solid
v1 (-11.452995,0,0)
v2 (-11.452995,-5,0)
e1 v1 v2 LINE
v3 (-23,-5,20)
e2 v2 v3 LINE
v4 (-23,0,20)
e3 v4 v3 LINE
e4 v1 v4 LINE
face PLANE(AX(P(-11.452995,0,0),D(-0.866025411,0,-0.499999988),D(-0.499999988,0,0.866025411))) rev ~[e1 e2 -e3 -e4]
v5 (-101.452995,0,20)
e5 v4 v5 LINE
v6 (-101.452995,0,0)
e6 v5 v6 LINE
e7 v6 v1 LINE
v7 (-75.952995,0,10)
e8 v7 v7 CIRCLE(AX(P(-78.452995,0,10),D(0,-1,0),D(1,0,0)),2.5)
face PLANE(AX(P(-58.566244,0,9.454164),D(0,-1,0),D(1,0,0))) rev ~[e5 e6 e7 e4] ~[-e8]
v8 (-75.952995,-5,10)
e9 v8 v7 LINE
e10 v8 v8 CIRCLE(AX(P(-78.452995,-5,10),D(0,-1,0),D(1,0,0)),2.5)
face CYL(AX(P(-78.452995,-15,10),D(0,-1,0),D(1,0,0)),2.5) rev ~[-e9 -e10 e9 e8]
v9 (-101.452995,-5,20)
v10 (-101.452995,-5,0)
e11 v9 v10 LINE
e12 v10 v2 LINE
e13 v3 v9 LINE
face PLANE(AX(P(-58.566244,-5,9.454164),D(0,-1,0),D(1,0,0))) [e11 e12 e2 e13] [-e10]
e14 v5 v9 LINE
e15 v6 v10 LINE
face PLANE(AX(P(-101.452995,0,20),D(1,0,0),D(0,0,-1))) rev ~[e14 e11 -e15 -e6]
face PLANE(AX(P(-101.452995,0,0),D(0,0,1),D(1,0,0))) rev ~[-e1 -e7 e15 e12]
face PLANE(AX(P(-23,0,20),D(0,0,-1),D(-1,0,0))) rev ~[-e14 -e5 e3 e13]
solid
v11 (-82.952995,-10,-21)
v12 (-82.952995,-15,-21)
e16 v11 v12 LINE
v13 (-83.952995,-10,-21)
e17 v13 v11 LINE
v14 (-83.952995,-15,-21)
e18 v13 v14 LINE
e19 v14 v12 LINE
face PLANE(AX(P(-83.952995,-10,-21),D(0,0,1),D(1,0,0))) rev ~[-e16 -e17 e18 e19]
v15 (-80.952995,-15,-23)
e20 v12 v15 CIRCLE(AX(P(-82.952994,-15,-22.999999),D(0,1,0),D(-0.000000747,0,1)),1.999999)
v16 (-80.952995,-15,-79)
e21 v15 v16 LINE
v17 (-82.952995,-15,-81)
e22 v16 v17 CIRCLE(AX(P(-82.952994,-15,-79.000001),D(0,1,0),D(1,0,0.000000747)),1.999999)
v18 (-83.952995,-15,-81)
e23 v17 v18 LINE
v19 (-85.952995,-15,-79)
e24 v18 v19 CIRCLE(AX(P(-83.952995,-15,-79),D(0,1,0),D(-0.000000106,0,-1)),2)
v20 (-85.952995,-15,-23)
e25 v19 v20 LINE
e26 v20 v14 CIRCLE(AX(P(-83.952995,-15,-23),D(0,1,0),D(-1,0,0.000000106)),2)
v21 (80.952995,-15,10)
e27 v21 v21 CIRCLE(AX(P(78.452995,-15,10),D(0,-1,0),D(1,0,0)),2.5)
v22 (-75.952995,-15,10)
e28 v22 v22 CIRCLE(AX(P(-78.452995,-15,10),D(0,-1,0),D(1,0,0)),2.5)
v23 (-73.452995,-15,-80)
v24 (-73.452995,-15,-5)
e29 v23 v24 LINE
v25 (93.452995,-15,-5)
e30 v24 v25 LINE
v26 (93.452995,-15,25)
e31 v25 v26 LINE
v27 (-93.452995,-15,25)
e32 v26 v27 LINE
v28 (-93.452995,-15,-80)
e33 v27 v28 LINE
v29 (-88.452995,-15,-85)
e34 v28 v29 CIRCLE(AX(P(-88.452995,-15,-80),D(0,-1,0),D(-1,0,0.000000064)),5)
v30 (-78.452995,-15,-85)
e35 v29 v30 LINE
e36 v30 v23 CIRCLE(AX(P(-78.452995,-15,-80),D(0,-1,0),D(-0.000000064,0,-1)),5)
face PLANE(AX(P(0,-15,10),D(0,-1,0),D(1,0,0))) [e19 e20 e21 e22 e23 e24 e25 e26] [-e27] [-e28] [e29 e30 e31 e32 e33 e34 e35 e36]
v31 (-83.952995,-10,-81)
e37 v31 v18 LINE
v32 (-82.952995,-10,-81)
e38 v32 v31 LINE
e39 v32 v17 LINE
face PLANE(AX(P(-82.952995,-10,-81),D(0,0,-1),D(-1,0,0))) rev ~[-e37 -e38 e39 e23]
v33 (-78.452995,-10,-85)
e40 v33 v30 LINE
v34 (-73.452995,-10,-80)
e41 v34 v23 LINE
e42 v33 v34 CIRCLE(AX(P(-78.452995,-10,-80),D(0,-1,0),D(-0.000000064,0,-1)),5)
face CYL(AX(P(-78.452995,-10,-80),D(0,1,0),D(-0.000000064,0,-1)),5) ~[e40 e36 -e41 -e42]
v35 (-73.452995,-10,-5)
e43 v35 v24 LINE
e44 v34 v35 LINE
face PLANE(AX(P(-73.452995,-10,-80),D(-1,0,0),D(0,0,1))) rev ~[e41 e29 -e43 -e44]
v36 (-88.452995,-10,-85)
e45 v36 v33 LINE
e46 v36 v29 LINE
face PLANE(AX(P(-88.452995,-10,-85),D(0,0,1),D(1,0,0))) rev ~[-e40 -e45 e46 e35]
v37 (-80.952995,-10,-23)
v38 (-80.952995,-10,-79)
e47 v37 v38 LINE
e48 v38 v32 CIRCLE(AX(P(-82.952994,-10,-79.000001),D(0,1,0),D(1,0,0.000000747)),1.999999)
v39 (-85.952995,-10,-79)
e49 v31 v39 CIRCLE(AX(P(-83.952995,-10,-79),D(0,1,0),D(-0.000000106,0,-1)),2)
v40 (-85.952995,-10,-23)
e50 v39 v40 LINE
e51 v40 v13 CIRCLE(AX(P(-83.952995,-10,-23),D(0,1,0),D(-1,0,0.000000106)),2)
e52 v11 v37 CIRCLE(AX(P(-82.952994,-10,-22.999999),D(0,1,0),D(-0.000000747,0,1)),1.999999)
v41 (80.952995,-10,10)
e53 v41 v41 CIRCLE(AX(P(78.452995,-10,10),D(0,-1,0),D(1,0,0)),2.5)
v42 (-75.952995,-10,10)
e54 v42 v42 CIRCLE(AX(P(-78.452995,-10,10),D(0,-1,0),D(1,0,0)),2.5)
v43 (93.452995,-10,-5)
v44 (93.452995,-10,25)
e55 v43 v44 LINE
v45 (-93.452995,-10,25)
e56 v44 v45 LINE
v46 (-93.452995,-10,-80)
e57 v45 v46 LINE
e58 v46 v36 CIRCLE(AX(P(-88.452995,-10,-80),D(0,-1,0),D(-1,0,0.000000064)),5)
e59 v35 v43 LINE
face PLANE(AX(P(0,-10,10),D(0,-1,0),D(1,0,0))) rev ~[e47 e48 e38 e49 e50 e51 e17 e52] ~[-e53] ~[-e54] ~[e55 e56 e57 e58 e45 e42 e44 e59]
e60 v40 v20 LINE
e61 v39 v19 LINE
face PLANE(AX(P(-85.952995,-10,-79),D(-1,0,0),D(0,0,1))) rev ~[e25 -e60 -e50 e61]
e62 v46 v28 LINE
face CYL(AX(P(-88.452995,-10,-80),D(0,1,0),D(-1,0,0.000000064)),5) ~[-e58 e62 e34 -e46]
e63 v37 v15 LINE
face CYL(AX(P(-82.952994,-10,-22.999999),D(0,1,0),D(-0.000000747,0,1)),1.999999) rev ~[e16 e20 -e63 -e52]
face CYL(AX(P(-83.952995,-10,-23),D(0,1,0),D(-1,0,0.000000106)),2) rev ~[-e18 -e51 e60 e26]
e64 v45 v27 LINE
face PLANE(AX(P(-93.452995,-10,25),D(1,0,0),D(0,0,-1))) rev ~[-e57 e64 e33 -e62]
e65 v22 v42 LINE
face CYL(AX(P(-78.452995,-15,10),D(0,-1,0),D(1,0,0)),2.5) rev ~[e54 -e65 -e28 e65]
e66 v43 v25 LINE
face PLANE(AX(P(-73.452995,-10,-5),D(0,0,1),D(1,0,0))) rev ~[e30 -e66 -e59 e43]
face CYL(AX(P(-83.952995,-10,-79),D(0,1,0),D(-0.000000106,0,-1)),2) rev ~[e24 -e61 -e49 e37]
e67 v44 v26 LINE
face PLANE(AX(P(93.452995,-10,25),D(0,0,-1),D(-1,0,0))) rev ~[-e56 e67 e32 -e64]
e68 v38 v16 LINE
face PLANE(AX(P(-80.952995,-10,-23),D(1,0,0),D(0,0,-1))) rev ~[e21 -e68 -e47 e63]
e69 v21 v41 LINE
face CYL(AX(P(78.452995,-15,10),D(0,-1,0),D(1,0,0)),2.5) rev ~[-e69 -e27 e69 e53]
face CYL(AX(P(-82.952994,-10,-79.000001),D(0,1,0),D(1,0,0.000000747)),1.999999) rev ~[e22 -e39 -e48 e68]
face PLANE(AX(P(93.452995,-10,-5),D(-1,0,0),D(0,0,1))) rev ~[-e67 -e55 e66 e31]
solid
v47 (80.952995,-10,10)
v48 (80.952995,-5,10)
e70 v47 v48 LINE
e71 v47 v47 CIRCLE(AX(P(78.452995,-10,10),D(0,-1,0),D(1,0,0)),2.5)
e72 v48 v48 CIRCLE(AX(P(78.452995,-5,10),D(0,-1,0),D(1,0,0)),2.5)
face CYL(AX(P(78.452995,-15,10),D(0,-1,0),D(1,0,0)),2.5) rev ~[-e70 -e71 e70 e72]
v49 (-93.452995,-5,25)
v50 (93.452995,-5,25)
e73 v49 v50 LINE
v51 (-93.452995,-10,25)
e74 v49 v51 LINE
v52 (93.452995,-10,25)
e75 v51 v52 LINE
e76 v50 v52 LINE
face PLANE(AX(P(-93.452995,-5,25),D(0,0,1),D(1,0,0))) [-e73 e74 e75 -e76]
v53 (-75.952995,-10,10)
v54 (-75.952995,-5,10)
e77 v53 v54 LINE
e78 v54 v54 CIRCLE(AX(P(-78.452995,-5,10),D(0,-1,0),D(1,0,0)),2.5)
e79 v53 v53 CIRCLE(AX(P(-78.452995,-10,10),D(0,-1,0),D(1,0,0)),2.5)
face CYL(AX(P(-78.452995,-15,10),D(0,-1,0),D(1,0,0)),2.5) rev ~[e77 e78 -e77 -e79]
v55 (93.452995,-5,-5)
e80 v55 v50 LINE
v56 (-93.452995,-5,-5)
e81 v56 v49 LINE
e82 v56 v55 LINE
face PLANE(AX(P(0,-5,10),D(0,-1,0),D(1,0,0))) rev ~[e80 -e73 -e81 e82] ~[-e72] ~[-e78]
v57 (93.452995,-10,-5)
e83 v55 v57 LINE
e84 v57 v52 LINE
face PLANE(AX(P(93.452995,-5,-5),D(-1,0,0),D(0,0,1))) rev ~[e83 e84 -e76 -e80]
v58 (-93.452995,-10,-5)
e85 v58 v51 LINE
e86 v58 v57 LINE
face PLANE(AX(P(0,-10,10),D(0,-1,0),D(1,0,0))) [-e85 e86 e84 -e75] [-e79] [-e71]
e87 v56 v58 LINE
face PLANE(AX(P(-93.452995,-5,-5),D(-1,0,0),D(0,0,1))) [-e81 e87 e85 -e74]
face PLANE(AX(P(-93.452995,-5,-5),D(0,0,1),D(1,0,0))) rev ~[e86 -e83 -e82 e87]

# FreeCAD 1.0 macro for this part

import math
import FreeCAD as App
import Part
import Sketcher
Q = App.Units.Quantity

doc = App.newDocument("Part")
body = doc.addObject("PartDesign::Body", "Body")

sketch1 = body.newObject("Sketcher::SketchObject", "Sketch")
sketch1.AttachmentSupport = (doc.getObject("XZ_Plane"), [""])
sketch1.MapMode = "FlatFace"
sketch1.addGeometry([
    Part.LineSegment(App.Vector(-101, 20, 0), App.Vector(-101, 0, 0)),
    Part.LineSegment(App.Vector(-101, 0, 0), App.Vector(-11, 0, 0)),
    Part.LineSegment(App.Vector(-11, 0, 0), App.Vector(-23, 20, 0)),
    Part.LineSegment(App.Vector(-23, 20, 0), App.Vector(-101, 20, 0)),
], False)
sketch1.addConstraint([
    Sketcher.Constraint("Coincident", 0, 2, 1, 1),
    Sketcher.Constraint("Coincident", 1, 2, 2, 1),
    Sketcher.Constraint("Coincident", 2, 2, 3, 1),
    Sketcher.Constraint("Coincident", 3, 2, 0, 1),
    Sketcher.Constraint("Vertical", 0),
    Sketcher.Constraint("Horizontal", 1),
    Sketcher.Constraint("Horizontal", 3),
    Sketcher.Constraint("PointOnObject", 0, 2, -1),
    Sketcher.Constraint("DistanceX", 1, 1, 1, 2, Q("90 mm")),
    Sketcher.Constraint("DistanceY", 0, 2, 0, 1, Q("20 mm")),
    Sketcher.Constraint("Angle", 2, Q("119.999999 deg")),
    Sketcher.Constraint("DistanceX", 2, 2, -1, 1, Q("23 mm")),
])
pad1 = body.newObject("PartDesign::Pad", "Pad")
pad1.Profile = sketch1
pad1.Length = 5
body2 = doc.addObject("PartDesign::Body", "Body001")

sketch2 = body2.newObject("Sketcher::SketchObject", "Sketch001")
sketch2.AttachmentSupport = (doc.getObject("XZ_Plane001"), [""])
sketch2.MapMode = "FlatFace"
sketch2.AttachmentOffset = App.Placement(App.Vector(0, 0, 5), App.Rotation())
sketch2.addGeometry([
    Part.LineSegment(App.Vector(-93, 25, 0), App.Vector(-93, -5, 0)),
    Part.LineSegment(App.Vector(-93, -5, 0), App.Vector(93, -5, 0)),
    Part.LineSegment(App.Vector(93, -5, 0), App.Vector(93, 25, 0)),
    Part.LineSegment(App.Vector(93, 25, 0), App.Vector(-93, 25, 0)),
], False)
sketch2.addConstraint([
    Sketcher.Constraint("Coincident", 0, 2, 1, 1),
    Sketcher.Constraint("Coincident", 1, 2, 2, 1),
    Sketcher.Constraint("Coincident", 2, 2, 3, 1),
    Sketcher.Constraint("Coincident", 3, 2, 0, 1),
    Sketcher.Constraint("Vertical", 0),
    Sketcher.Constraint("Horizontal", 1),
    Sketcher.Constraint("Vertical", 2),
    Sketcher.Constraint("Horizontal", 3),
    Sketcher.Constraint("DistanceY", 0, 2, 0, 1, Q("30 mm")),
    Sketcher.Constraint("DistanceY", 0, 2, -1, 1, Q("5 mm")),
    Sketcher.Constraint("DistanceX", 1, 1, 1, 2, Q("186.90599 mm")),
    Sketcher.Constraint("DistanceX", 0, 2, -1, 1, Q("93.452995 mm")),
])
pad2 = body2.newObject("PartDesign::Pad", "Pad001")
pad2.Profile = sketch2
pad2.Length = 5
body3 = doc.addObject("PartDesign::Body", "Body002")

sketch3 = body3.newObject("Sketcher::SketchObject", "Sketch002")
sketch3.AttachmentSupport = (doc.getObject("XZ_Plane002"), [""])
sketch3.MapMode = "FlatFace"
sketch3.AttachmentOffset = App.Placement(App.Vector(0, 0, 10), App.Rotation())
sketch3.addGeometry([
    Part.LineSegment(App.Vector(93.5, 25, 0), App.Vector(-93.5, 25, 0)),
    Part.LineSegment(App.Vector(-93.5, 25, 0), App.Vector(-93.5, -80, 0)),
    Part.ArcOfCircle(Part.Circle(App.Vector(-88.5, -80, 0), App.Vector(0, 0, 1), 5), math.radians(180), math.radians(270)),
    Part.LineSegment(App.Vector(-88.5, -85, 0), App.Vector(-78.5, -85, 0)),
    Part.ArcOfCircle(Part.Circle(App.Vector(-78.5, -80, 0), App.Vector(0, 0, 1), 5), math.radians(-90), math.radians(0)),
    Part.LineSegment(App.Vector(-73.5, -80, 0), App.Vector(-73.5, -5, 0)),
    Part.LineSegment(App.Vector(-73.5, -5, 0), App.Vector(93.5, -5, 0)),
    Part.LineSegment(App.Vector(93.5, -5, 0), App.Vector(93.5, 25, 0)),
    Part.ArcOfCircle(Part.Circle(App.Vector(-84, -23, 0), App.Vector(0, 0, 1), 2), math.radians(90), math.radians(180)),
    Part.LineSegment(App.Vector(-84, -21, 0), App.Vector(-83, -21, 0)),
    Part.ArcOfCircle(Part.Circle(App.Vector(-83, -23, 0), App.Vector(0, 0, 1), 2), math.radians(0), math.radians(90)),
    Part.LineSegment(App.Vector(-81, -23, 0), App.Vector(-81, -79, 0)),
    Part.ArcOfCircle(Part.Circle(App.Vector(-83, -79, 0), App.Vector(0, 0, 1), 2), math.radians(-90), math.radians(0)),
    Part.LineSegment(App.Vector(-83, -81, 0), App.Vector(-84, -81, 0)),
    Part.ArcOfCircle(Part.Circle(App.Vector(-84, -79, 0), App.Vector(0, 0, 1), 2), math.radians(-180), math.radians(-90)),
    Part.LineSegment(App.Vector(-86, -79, 0), App.Vector(-86, -23, 0)),
], False)
sketch3.addConstraint([
    Sketcher.Constraint("Coincident", 0, 2, 1, 1),
    Sketcher.Constraint("Tangent", 1, 2, 2, 1),
    Sketcher.Constraint("Tangent", 2, 2, 3, 1),
    Sketcher.Constraint("Tangent", 3, 2, 4, 1),
    Sketcher.Constraint("Tangent", 4, 2, 5, 1),
    Sketcher.Constraint("Coincident", 5, 2, 6, 1),
    Sketcher.Constraint("Coincident", 6, 2, 7, 1),
    Sketcher.Constraint("Coincident", 7, 2, 0, 1),
    Sketcher.Constraint("Tangent", 8, 1, 9, 1),
    Sketcher.Constraint("Tangent", 9, 2, 10, 2),
    Sketcher.Constraint("Tangent", 10, 1, 11, 1),
    Sketcher.Constraint("Tangent", 11, 2, 12, 2),
    Sketcher.Constraint("Tangent", 12, 1, 13, 1),
    Sketcher.Constraint("Tangent", 13, 2, 14, 2),
    Sketcher.Constraint("Tangent", 14, 1, 15, 1),
    Sketcher.Constraint("Tangent", 15, 2, 8, 2),
    Sketcher.Constraint("Horizontal", 0),
    Sketcher.Constraint("Vertical", 1),
    Sketcher.Constraint("Horizontal", 3),
    Sketcher.Constraint("Vertical", 5),
    Sketcher.Constraint("Horizontal", 6),
    Sketcher.Constraint("Vertical", 7),
    Sketcher.Constraint("Horizontal", 9),
    Sketcher.Constraint("Vertical", 11),
    Sketcher.Constraint("Horizontal", 13),
    Sketcher.Constraint("Vertical", 15),
    Sketcher.Constraint("Equal", 2, 4),
    Sketcher.Constraint("Equal", 8, 10),
    Sketcher.Constraint("Equal", 10, 12),
    Sketcher.Constraint("Equal", 12, 14),
    Sketcher.Constraint("Radius", 2, Q("5 mm")),
    Sketcher.Constraint("Radius", 8, Q("2 mm")),
    Sketcher.Constraint("DistanceX", 3, 1, 3, 2, Q("10 mm")),
    Sketcher.Constraint("DistanceX", 9, 1, 9, 2, Q("1 mm")),
    Sketcher.Constraint("DistanceY", 1, 2, 1, 1, Q("105 mm")),
    Sketcher.Constraint("DistanceY", 5, 1, 5, 2, Q("75 mm")),
    Sketcher.Constraint("DistanceY", 11, 2, 11, 1, Q("56 mm")),
    Sketcher.Constraint("DistanceY", 2, 3, -1, 1, Q("80 mm")),
    Sketcher.Constraint("DistanceY", 8, 3, -1, 1, Q("23 mm")),
    Sketcher.Constraint("DistanceX", 2, 3, 8, 3, Q("4.500001 mm")),
    Sketcher.Constraint("DistanceX", 0, 2, 0, 1, Q("186.90599 mm")),
    Sketcher.Constraint("DistanceX", 2, 3, -1, 1, Q("88.452995 mm")),
])
pad3 = body3.newObject("PartDesign::Pad", "Pad002")
pad3.Profile = sketch3
pad3.Length = 5
body4 = doc.addObject("PartDesign::Body", "Body003")
body4.AllowCompound = True

sketch4 = body4.newObject("Sketcher::SketchObject", "Sketch003")
sketch4.AttachmentSupport = (doc.getObject("XZ_Plane003"), [""])
sketch4.MapMode = "FlatFace"
sketch4.AttachmentOffset = App.Placement(App.Vector(0, 0, 15), App.Rotation())
sketch4.addGeometry([
    Part.Circle(App.Vector(-78.5, 10, 0), App.Vector(0, 0, 1), 2.5),
    Part.Circle(App.Vector(78.5, 10, 0), App.Vector(0, 0, 1), 2.5),
], False)
sketch4.addConstraint([
    Sketcher.Constraint("Equal", 0, 1),
    Sketcher.Constraint("Symmetric", 0, 3, 1, 3, -2),
    Sketcher.Constraint("Diameter", 0, Q("5 mm")),
    Sketcher.Constraint("DistanceY", -1, 1, 0, 3, Q("10 mm")),
    Sketcher.Constraint("DistanceX", 0, 3, 1, 3, Q("156.90599 mm")),
])
pad4 = body4.newObject("PartDesign::Pad", "Pad003")
pad4.Profile = sketch4
pad4.Length = 15.001
pad4.Reversed = True
doc.recompute()

body5 = doc.addObject("PartDesign::Body", "Body004")
body5.BaseFeature = body4
boolean = body.newObject("PartDesign::Boolean", "Boolean")
boolean.Type = "Cut"
boolean.addObjects([body5])
doc.recompute()

body6 = doc.addObject("PartDesign::Body", "Body005")
body6.BaseFeature = body4
boolean2 = body2.newObject("PartDesign::Boolean", "Boolean001")
boolean2.Type = "Cut"
boolean2.addObjects([body6])
doc.recompute()

boolean3 = body3.newObject("PartDesign::Boolean", "Boolean002")
boolean3.Type = "Cut"
boolean3.addObjects([body4])

doc.recompute()
